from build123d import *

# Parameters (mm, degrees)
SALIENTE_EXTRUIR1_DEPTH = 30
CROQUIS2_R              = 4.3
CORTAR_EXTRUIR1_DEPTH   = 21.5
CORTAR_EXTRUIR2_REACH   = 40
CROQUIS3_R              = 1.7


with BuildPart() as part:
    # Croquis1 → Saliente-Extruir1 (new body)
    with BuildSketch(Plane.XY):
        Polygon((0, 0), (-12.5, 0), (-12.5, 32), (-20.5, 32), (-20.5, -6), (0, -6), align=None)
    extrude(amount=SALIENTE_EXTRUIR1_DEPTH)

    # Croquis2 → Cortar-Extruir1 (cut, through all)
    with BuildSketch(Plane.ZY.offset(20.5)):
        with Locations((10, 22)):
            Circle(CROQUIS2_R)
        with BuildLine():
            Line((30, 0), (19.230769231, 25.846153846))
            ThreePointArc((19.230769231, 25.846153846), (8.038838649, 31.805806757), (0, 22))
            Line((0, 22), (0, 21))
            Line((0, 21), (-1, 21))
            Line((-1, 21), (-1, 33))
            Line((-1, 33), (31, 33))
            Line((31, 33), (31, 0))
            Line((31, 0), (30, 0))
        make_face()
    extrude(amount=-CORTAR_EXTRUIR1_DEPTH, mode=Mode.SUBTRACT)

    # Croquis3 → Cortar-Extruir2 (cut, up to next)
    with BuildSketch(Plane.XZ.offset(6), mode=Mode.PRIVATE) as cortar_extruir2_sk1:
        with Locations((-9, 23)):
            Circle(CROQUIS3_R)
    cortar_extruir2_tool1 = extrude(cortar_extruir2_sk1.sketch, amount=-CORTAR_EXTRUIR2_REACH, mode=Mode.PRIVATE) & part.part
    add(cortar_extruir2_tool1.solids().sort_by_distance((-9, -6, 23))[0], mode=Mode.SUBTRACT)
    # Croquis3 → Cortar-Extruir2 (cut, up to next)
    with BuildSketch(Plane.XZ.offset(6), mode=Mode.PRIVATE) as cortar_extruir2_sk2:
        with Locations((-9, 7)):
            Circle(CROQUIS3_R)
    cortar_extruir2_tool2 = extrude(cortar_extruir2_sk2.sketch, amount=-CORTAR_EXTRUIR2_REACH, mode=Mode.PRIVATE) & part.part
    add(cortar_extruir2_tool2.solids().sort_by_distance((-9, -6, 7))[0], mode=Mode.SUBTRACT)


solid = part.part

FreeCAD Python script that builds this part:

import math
import FreeCAD as App
import Part
import Sketcher
from FreeCAD import Vector
Q = App.Units.Quantity

doc = App.newDocument("Part")
params = doc.addObject("Spreadsheet::Sheet", "Params")
for row, (alias, value) in enumerate([
    ("sketch1_width", "8 mm"),
    ("sketch1_height", "32 mm"),
    ("sketch1_height2", "38 mm"),
    ("sketch1_width2", "12.5 mm"),
    ("pad1_length", "30 mm"),
    ("sketch2_radius", "10 mm"),
    ("sketch2_diameter", "8.6 mm"),
    ("sketch2_width", "33 mm"),
    ("sketch2_width2", "12 mm"),
    ("sketch2_width3", "1 mm"),
    ("sketch3_diameter", "3.4 mm"),
    ("sketch4_diameter", "3.4 mm"),
], start=1):
    params.set(f"A{row}", alias)
    params.set(f"B{row}", "=" + value)
    params.setAlias(f"B{row}", alias)

body = doc.addObject("PartDesign::Body", "Body")

sketch1 = body.newObject("Sketcher::SketchObject", "Sketch")
sketch1.AttachmentSupport = (doc.getObject("XY_Plane"), [""])
sketch1.MapMode = "FlatFace"
sketch1.addGeometry([
    Part.LineSegment(Vector(0, 0, 0), Vector(-12, 0, 0)),
    Part.LineSegment(Vector(-12, 0, 0), Vector(-12, 32, 0)),
    Part.LineSegment(Vector(-12, 32, 0), Vector(-20, 32, 0)),
    Part.LineSegment(Vector(-20, 32, 0), Vector(-20, -6, 0)),
    Part.LineSegment(Vector(-20, -6, 0), Vector(0, -6, 0)),
    Part.LineSegment(Vector(0, -6, 0), Vector(0, 0, 0)),
], False)
sketch1.addConstraint([
    Sketcher.Constraint("Coincident", 0, 2, 1, 1),
    Sketcher.Constraint("Coincident", 1, 2, 2, 1),
    Sketcher.Constraint("Coincident", 2, 2, 3, 1),
    Sketcher.Constraint("Coincident", 3, 2, 4, 1),
    Sketcher.Constraint("Coincident", 4, 2, 5, 1),
    Sketcher.Constraint("Coincident", 5, 2, 0, 1),
    Sketcher.Constraint("Horizontal", 0),
    Sketcher.Constraint("Vertical", 1),
    Sketcher.Constraint("Horizontal", 2),
    Sketcher.Constraint("Vertical", 3),
    Sketcher.Constraint("Horizontal", 4),
    Sketcher.Constraint("Vertical", 5),
    Sketcher.Constraint("Coincident", 5, 2, -1, 1),
    Sketcher.Constraint("DistanceX", 2, 2, 2, 1, Q("8 mm")),
    Sketcher.Constraint("DistanceY", 1, 1, 1, 2, Q("32 mm")),
    Sketcher.Constraint("DistanceY", 3, 2, 3, 1, Q("38 mm")),
    Sketcher.Constraint("DistanceX", 0, 2, 0, 1, Q("12.5 mm")),
])
sketch1.setExpression("Constraints[13]", "Params.sketch1_width")
sketch1.setExpression("Constraints[14]", "Params.sketch1_height")
sketch1.setExpression("Constraints[15]", "Params.sketch1_height2")
sketch1.setExpression("Constraints[16]", "Params.sketch1_width2")
pad1 = body.newObject("PartDesign::Pad", "Pad")
pad1.Profile = sketch1
pad1.setExpression("Length", "Params.pad1_length")

sketch2 = body.newObject("Sketcher::SketchObject", "Sketch001")
sketch2.AttachmentSupport = (doc.getObject("YZ_Plane"), [""])
sketch2.MapMode = "FlatFace"
sketch2.AttachmentOffset = App.Placement(Vector(0, 0, -20.5), App.Rotation())
sketch2.addGeometry([
    Part.Circle(Vector(22, 10, 0), Vector(0, 0, 1), 4.3),
    Part.LineSegment(Vector(25.8, 19.2, 0), Vector(0, 30, 0)),
    Part.LineSegment(Vector(0, 30, 0), Vector(0, 31, 0)),
    Part.LineSegment(Vector(0, 31, 0), Vector(33, 31, 0)),
    Part.LineSegment(Vector(33, 31, 0), Vector(33, -1, 0)),
    Part.LineSegment(Vector(33, -1, 0), Vector(21, -1, 0)),
    Part.LineSegment(Vector(21, -1, 0), Vector(21, 0, 0)),
    Part.LineSegment(Vector(21, 0, 0), Vector(22, 0, 0)),
    Part.ArcOfCircle(Part.Circle(Vector(22, 10, 0), Vector(0, 0, 1), 10), math.radians(-90), math.radians(67)),
], False)
sketch2.addConstraint([
    Sketcher.Constraint("Coincident", 1, 2, 2, 1),
    Sketcher.Constraint("Coincident", 2, 2, 3, 1),
    Sketcher.Constraint("Coincident", 3, 2, 4, 1),
    Sketcher.Constraint("Coincident", 4, 2, 5, 1),
    Sketcher.Constraint("Coincident", 5, 2, 6, 1),
    Sketcher.Constraint("Coincident", 6, 2, 7, 1),
    Sketcher.Constraint("Tangent", 7, 2, 8, 1),
    Sketcher.Constraint("Tangent", 8, 2, 1, 1),
    Sketcher.Constraint("Vertical", 2),
    Sketcher.Constraint("Horizontal", 3),
    Sketcher.Constraint("Vertical", 4),
    Sketcher.Constraint("Horizontal", 5),
    Sketcher.Constraint("Vertical", 6),
    Sketcher.Constraint("Horizontal", 7),
    Sketcher.Constraint("Coincident", 8, 3, 0, 3),
    Sketcher.Constraint("PointOnObject", 1, 2, -2),
    Sketcher.Constraint("PointOnObject", 6, 2, -1),
    Sketcher.Constraint("Equal", 7, 2),
    Sketcher.Constraint("Equal", 2, 6),
    Sketcher.Constraint("Radius", 8, Q("10 mm")),
    Sketcher.Constraint("Diameter", 0, Q("8.6 mm")),
    Sketcher.Constraint("DistanceX", 3, 1, 3, 2, Q("33 mm")),
    Sketcher.Constraint("DistanceX", 5, 2, 5, 1, Q("12 mm")),
    Sketcher.Constraint("DistanceX", 7, 1, 7, 2, Q("1 mm")),
    Sketcher.Constraint("DistanceY", 4, 2, 4, 1, Q("32 mm")),
])
sketch2.setExpression("Constraints[19]", "Params.sketch2_radius")
sketch2.setExpression("Constraints[20]", "Params.sketch2_diameter")
sketch2.setExpression("Constraints[21]", "Params.sketch2_width")
sketch2.setExpression("Constraints[22]", "Params.sketch2_width2")
sketch2.setExpression("Constraints[23]", "Params.sketch2_width3")
pocket1 = body.newObject("PartDesign::Pocket", "Pocket")
pocket1.Profile = sketch2
pocket1.Type = "ThroughAll"
pocket1.Reversed = True

sketch3 = body.newObject("Sketcher::SketchObject", "Sketch002")
sketch3.AttachmentSupport = (doc.getObject("XZ_Plane"), [""])
sketch3.MapMode = "FlatFace"
sketch3.AttachmentOffset = App.Placement(Vector(0, 0, 6), App.Rotation())
sketch3.addGeometry(Part.Circle(Vector(-9, 23, 0), Vector(0, 0, 1), 1.7), False)
sketch3.addConstraint([
    Sketcher.Constraint("Diameter", 0, Q("3.4 mm")),
    Sketcher.Constraint("DistanceX", 0, 3, -1, 1, Q("9 mm")),
    Sketcher.Constraint("DistanceY", -1, 1, 0, 3, Q("23 mm")),
])
sketch3.setExpression("Constraints[0]", "Params.sketch3_diameter")
pocket2 = body.newObject("PartDesign::Pocket", "Pocket001")
pocket2.Profile = sketch3
pocket2.Type = "UpToFirst"

sketch4 = body.newObject("Sketcher::SketchObject", "Sketch003")
sketch4.AttachmentSupport = (doc.getObject("XZ_Plane"), [""])
sketch4.MapMode = "FlatFace"
sketch4.AttachmentOffset = App.Placement(Vector(0, 0, 6), App.Rotation())
sketch4.addGeometry(Part.Circle(Vector(-9, 7, 0), Vector(0, 0, 1), 1.7), False)
sketch4.addConstraint([
    Sketcher.Constraint("Diameter", 0, Q("3.4 mm")),
    Sketcher.Constraint("DistanceX", 0, 3, -1, 1, Q("9 mm")),
    Sketcher.Constraint("DistanceY", -1, 1, 0, 3, Q("7 mm")),
])
sketch4.setExpression("Constraints[0]", "Params.sketch4_diameter")
pocket3 = body.newObject("PartDesign::Pocket", "Pocket002")
pocket3.Profile = sketch4
pocket3.Type = "UpToFirst"

doc.recompute()
